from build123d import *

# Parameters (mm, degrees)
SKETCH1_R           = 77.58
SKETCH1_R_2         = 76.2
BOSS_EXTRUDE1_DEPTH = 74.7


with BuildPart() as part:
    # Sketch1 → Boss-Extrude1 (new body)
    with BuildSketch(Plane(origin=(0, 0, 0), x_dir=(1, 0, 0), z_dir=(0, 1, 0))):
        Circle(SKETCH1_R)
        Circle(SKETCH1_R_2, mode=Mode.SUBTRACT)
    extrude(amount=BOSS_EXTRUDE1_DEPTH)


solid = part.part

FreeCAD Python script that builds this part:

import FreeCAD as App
import Part
import Sketcher

V = App.Vector
Q = App.Units.Quantity

doc = App.newDocument("Part")
body = doc.addObject("PartDesign::Body", "Body")

sketch1 = body.newObject("Sketcher::SketchObject", "Sketch")
sketch1.AttachmentSupport = (doc.getObject("XZ_Plane"), [""])
sketch1.MapMode = "FlatFace"
sketch1.addGeometry([
    Part.Circle(V(0, 0, 0), V(0, 0, 1), 77.58),
    Part.Circle(V(0, 0, 0), V(0, 0, 1), 76.2),
], False)
sketch1.addConstraint([
    Sketcher.Constraint("Coincident", 0, 3, -1, 1),
    Sketcher.Constraint("Coincident", 1, 3, -1, 1),
    Sketcher.Constraint("Diameter", 1, Q("152.4 mm")),
    Sketcher.Constraint("Diameter", 0, Q("155.16 mm")),
])
pad1 = body.newObject("PartDesign::Pad", "Pad")
pad1.Profile = sketch1
pad1.Length = 74.7
pad1.Reversed = True

doc.recompute()
